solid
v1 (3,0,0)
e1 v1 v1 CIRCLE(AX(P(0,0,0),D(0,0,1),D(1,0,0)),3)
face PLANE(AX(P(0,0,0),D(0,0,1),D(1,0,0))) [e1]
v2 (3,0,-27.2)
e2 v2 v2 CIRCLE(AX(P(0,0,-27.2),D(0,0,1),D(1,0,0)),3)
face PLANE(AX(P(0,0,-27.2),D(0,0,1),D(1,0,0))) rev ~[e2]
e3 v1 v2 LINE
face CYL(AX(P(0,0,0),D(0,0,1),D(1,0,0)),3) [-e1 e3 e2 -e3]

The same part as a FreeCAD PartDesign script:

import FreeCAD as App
import Part
import Sketcher

V = App.Vector

doc = App.newDocument("Part")
body = doc.addObject("PartDesign::Body", "Body")

sketch1 = doc.addObject("Sketcher::SketchObject", "Sketch")
body.addObject(sketch1)
sketch1.AttachmentSupport = (doc.XY_Plane, [""])
sketch1.MapMode = "FlatFace"
sketch1.addGeometry(Part.Circle(V(0, 0, 0), V(0, 0, 1), 3), False)
sketch1.addConstraint([
    Sketcher.Constraint("Coincident", 0, 3, -1, 1),
    Sketcher.Constraint("Diameter", 0, 6.0),
])
pad1 = doc.addObject("PartDesign::Pad", "Pad")
body.addObject(pad1)
pad1.Profile = sketch1
pad1.Length = 27.2
pad1.Reversed = True

doc.recompute()
